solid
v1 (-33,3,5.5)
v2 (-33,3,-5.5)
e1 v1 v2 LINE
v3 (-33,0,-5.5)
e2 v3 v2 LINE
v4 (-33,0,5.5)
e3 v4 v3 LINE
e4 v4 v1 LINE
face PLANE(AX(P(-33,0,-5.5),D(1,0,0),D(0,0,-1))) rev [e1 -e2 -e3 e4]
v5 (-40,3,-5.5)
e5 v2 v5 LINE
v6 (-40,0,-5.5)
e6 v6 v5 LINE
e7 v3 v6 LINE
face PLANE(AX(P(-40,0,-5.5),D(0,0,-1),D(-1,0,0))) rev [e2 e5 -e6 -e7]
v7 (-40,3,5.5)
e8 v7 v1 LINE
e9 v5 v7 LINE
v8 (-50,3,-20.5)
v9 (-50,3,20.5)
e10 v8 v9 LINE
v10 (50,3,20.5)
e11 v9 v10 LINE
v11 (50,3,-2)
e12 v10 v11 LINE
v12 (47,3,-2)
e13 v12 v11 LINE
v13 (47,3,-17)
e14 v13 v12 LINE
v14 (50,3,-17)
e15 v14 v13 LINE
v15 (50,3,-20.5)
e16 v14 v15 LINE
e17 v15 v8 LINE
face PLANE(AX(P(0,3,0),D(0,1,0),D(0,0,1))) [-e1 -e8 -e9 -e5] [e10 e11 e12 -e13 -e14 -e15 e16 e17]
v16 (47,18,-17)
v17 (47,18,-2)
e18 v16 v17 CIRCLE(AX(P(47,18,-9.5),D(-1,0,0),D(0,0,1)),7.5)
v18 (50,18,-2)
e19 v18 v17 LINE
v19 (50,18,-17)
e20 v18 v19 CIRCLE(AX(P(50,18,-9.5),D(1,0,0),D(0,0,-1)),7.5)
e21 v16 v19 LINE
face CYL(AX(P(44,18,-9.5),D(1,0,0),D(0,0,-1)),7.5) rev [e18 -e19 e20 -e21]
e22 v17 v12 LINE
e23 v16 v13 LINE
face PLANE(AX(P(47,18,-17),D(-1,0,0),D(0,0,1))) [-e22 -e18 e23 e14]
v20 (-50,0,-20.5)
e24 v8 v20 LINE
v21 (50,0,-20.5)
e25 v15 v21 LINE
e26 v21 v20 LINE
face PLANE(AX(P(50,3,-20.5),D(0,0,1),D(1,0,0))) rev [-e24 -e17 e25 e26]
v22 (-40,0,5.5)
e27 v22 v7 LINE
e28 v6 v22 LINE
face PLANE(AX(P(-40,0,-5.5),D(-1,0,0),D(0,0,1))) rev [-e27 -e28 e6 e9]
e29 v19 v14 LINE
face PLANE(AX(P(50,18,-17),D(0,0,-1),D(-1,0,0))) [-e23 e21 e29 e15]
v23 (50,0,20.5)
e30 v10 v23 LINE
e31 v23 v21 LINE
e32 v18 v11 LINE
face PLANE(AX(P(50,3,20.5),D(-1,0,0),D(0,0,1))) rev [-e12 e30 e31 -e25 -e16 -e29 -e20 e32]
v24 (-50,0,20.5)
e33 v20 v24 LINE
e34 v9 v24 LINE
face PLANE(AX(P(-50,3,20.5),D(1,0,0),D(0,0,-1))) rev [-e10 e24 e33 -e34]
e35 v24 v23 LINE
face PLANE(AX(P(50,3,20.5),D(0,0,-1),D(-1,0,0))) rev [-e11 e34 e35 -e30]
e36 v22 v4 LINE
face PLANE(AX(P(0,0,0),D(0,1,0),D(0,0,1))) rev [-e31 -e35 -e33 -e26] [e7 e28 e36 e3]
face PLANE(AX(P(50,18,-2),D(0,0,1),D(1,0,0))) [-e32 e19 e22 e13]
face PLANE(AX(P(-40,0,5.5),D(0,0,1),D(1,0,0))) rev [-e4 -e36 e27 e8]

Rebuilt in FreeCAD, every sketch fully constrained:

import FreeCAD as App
import Part
import Sketcher
from FreeCAD import Vector


def add_polygon(sketch, points):
    """Adds a closed chain of lines whose ends are joined by coincident constraints."""
    first, n = sketch.GeometryCount, len(points)
    for a, b in zip(points, points[1:] + points[:1]):
        sketch.addGeometry(Part.LineSegment(App.Vector(*a, 0), App.Vector(*b, 0)), False)
    for i in range(n):
        sketch.addConstraint(Sketcher.Constraint("Coincident", first + i, 2, first + (i + 1) % n, 1))

doc = App.newDocument("Part")
params = doc.addObject("Spreadsheet::Sheet", "Params")
for row, (alias, value) in enumerate([
    ("sketch1_width", "100 mm"),
    ("sketch1_height", "41 mm"),
    ("pad1_length", "3 mm"),
    ("sketch2_width", "7 mm"),
    ("sketch2_height", "11 mm"),
    ("pocket1_length", "3 mm"),
    ("sketch3_width", "3 mm"),
    ("sketch3_height", "15 mm"),
    ("pad2_length", "18 mm"),
    ("sketch4_diameter", "15 mm"),
    ("pocket2_length", "6 mm"),
], start=1):
    params.set(f"A{row}", alias)
    params.set(f"B{row}", "=" + value)
    params.setAlias(f"B{row}", alias)

body = doc.addObject("PartDesign::Body", "Body")

# Sketch on XZ plane
sketch1 = body.newObject("Sketcher::SketchObject", "Sketch")
sketch1.AttachmentSupport = (doc.getObject("XZ_Plane"), [""])
sketch1.MapMode = "FlatFace"
add_polygon(sketch1, [(-50, -20.5), (-50, 20.5), (50, 20.5), (50, -20.5)])  # lines 0-3
sketch1.addConstraint([
    Sketcher.Constraint("Vertical", 0),
    Sketcher.Constraint("Horizontal", 1),
    Sketcher.Constraint("Vertical", 2),
    Sketcher.Constraint("Horizontal", 3),
    Sketcher.Constraint("Symmetric", 0, 2, 2, 2, -1, 1),
    Sketcher.Constraint("DistanceX", 1, 1, 1, 2, 100.0),
    Sketcher.Constraint("DistanceY", 0, 1, 0, 2, 41.0),
])
sketch1.setExpression("Constraints[9]", "Params.sketch1_width")
sketch1.setExpression("Constraints[10]", "Params.sketch1_height")
pad1 = body.newObject("PartDesign::Pad", "Pad")
pad1.Profile = sketch1
pad1.setExpression("Length", "Params.pad1_length")
pad1.Reversed = True

# Sketch on XZ plane
sketch2 = body.newObject("Sketcher::SketchObject", "Sketch001")
sketch2.AttachmentSupport = (doc.getObject("XZ_Plane"), [""])
sketch2.MapMode = "FlatFace"
sketch2.AttachmentOffset = App.Placement(Vector(0, 0, -3), App.Rotation())
add_polygon(sketch2, [(-40, -5.5), (-40, 5.5), (-33, 5.5), (-33, -5.5)])  # lines 0-3
sketch2.addConstraint([
    Sketcher.Constraint("Vertical", 0),
    Sketcher.Constraint("Horizontal", 1),
    Sketcher.Constraint("Vertical", 2),
    Sketcher.Constraint("Horizontal", 3),
    Sketcher.Constraint("DistanceX", 1, 1, 1, 2, 7.0),
    Sketcher.Constraint("DistanceY", 0, 1, 0, 2, 11.0),
    Sketcher.Constraint("DistanceX", 0, 2, -1, 1, 40.0),
    Sketcher.Constraint("DistanceY", -1, 1, 0, 2, 5.5),
])
sketch2.setExpression("Constraints[8]", "Params.sketch2_width")
sketch2.setExpression("Constraints[9]", "Params.sketch2_height")
pocket1 = body.newObject("PartDesign::Pocket", "Pocket")
pocket1.Profile = sketch2
pocket1.setExpression("Length", "Params.pocket1_length")
pocket1.Reversed = True

# Sketch on XZ plane
sketch3 = body.newObject("Sketcher::SketchObject", "Sketch002")
sketch3.AttachmentSupport = (doc.getObject("XZ_Plane"), [""])
sketch3.MapMode = "FlatFace"
add_polygon(sketch3, [(47, -2), (47, -17), (50, -17), (50, -2)])  # lines 0-3
sketch3.addConstraint([
    Sketcher.Constraint("Vertical", 0),
    Sketcher.Constraint("Horizontal", 1),
    Sketcher.Constraint("Vertical", 2),
    Sketcher.Constraint("Horizontal", 3),
    Sketcher.Constraint("DistanceX", 1, 1, 1, 2, 3.0),
    Sketcher.Constraint("DistanceY", 0, 2, 0, 1, 15.0),
    Sketcher.Constraint("DistanceX", -1, 1, 0, 2, 47.0),
    Sketcher.Constraint("DistanceY", 0, 2, -1, 1, 17.0),
])
sketch3.setExpression("Constraints[8]", "Params.sketch3_width")
sketch3.setExpression("Constraints[9]", "Params.sketch3_height")
pad2 = body.newObject("PartDesign::Pad", "Pad001")
pad2.Profile = sketch3
pad2.setExpression("Length", "Params.pad2_length")
pad2.Reversed = True

# Sketch on YZ plane
sketch4 = body.newObject("Sketcher::SketchObject", "Sketch003")
sketch4.AttachmentSupport = (doc.getObject("YZ_Plane"), [""])
sketch4.MapMode = "FlatFace"
sketch4.AttachmentOffset = App.Placement(Vector(0, 0, 50), App.Rotation())
sketch4.addGeometry(Part.Circle(Vector(18, -9.5, 0), Vector(0, 0, 1), 7.5), False)
sketch4.addConstraint([
    Sketcher.Constraint("Diameter", 0, 15.0),
    Sketcher.Constraint("DistanceX", -1, 1, 0, 3, 18.0),
    Sketcher.Constraint("DistanceY", 0, 3, -1, 1, 9.5),
])
sketch4.setExpression("Constraints[0]", "Params.sketch4_diameter")
pocket2 = body.newObject("PartDesign::Pocket", "Pocket001")
pocket2.Profile = sketch4
pocket2.setExpression("Length", "Params.pocket2_length")

doc.recompute()
